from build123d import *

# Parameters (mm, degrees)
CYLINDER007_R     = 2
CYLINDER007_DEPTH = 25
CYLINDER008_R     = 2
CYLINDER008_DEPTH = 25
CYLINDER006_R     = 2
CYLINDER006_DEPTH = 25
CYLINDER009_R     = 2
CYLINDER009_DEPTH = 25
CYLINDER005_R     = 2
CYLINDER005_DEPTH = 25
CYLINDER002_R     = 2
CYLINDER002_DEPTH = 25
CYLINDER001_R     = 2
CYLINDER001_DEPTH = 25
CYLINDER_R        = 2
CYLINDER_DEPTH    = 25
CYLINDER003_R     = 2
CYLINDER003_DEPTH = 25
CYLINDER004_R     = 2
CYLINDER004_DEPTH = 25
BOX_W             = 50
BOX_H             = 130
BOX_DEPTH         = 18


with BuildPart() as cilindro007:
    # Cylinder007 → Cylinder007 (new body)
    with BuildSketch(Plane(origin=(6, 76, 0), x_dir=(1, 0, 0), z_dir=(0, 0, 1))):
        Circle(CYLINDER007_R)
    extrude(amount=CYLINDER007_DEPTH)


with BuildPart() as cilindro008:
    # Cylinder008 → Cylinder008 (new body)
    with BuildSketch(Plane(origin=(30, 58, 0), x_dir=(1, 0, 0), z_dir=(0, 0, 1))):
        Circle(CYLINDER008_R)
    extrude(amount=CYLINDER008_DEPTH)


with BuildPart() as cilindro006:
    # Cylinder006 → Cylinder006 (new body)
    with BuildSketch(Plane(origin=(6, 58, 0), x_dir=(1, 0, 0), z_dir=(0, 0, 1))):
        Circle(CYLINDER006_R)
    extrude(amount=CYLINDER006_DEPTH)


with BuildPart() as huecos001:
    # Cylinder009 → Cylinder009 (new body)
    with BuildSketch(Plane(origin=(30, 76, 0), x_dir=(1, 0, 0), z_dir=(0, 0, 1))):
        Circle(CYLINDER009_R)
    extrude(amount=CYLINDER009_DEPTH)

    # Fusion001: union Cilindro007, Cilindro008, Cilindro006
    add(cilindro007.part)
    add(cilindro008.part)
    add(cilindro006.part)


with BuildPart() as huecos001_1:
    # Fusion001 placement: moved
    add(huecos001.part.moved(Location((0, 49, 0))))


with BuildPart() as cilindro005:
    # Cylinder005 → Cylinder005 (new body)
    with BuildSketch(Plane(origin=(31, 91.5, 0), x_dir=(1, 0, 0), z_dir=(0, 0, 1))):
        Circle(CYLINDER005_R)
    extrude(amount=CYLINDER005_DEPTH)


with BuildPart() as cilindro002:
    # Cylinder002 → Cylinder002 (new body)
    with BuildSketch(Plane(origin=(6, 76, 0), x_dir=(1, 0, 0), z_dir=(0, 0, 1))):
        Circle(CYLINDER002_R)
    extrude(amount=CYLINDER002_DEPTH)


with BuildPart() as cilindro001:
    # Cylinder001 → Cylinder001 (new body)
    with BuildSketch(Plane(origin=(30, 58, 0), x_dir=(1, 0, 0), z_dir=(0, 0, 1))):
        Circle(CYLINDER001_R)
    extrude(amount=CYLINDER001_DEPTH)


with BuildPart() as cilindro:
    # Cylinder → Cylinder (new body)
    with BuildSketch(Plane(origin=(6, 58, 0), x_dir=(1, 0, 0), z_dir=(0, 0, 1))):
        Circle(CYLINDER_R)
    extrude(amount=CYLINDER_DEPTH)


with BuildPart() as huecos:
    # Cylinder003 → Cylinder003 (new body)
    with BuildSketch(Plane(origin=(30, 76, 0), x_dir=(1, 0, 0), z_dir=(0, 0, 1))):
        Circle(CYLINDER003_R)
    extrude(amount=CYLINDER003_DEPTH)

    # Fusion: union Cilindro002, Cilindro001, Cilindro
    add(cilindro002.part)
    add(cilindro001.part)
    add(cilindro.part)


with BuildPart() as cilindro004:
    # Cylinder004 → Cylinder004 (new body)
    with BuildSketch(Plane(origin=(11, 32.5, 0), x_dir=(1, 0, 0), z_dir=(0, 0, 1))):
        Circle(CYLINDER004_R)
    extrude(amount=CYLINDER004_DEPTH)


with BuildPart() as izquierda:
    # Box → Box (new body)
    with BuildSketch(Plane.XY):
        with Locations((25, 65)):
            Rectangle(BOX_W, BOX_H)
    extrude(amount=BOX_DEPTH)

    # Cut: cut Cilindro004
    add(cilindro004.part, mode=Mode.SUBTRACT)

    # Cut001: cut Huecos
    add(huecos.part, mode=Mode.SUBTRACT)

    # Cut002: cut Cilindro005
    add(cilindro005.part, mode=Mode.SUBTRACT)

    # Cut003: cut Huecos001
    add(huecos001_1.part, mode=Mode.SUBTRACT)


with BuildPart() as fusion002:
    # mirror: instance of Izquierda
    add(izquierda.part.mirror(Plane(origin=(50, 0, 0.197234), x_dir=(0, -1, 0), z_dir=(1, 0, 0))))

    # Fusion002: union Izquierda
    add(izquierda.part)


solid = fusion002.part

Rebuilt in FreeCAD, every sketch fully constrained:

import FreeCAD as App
import Part
import Sketcher
Q = App.Units.Quantity


def add_polygon(sketch, points):
    """Adds a closed chain of lines whose ends are joined by coincident constraints."""
    first, n = sketch.GeometryCount, len(points)
    for a, b in zip(points, points[1:] + points[:1]):
        sketch.addGeometry(Part.LineSegment(App.Vector(*a, 0), App.Vector(*b, 0)), False)
    for i in range(n):
        sketch.addConstraint(Sketcher.Constraint("Coincident", first + i, 2, first + (i + 1) % n, 1))

doc = App.newDocument("Part")
body = doc.addObject("PartDesign::Body", "Body")

# Sketch on XY plane
sketch1 = body.newObject("Sketcher::SketchObject", "Sketch")
sketch1.AttachmentSupport = (doc.getObject("XY_Plane"), [""])
sketch1.MapMode = "FlatFace"
sketch1.addGeometry(Part.Circle(App.Vector(6, 76, 0), App.Vector(0, 0, 1), 2), False)
sketch1.addConstraint(Sketcher.Constraint("Diameter", 0, Q("4 mm")))
sketch1.addConstraint(Sketcher.Constraint("DistanceX", -1, 1, 0, 3, Q("6 mm")))
sketch1.addConstraint(Sketcher.Constraint("DistanceY", -1, 1, 0, 3, Q("76 mm")))
pad1 = body.newObject("PartDesign::Pad", "Pad")
pad1.Profile = sketch1
pad1.Length = 25
body2 = doc.addObject("PartDesign::Body", "Body001")

# Sketch on XY plane
sketch2 = body2.newObject("Sketcher::SketchObject", "Sketch001")
sketch2.AttachmentSupport = (doc.getObject("XY_Plane001"), [""])
sketch2.MapMode = "FlatFace"
sketch2.addGeometry(Part.Circle(App.Vector(30, 58, 0), App.Vector(0, 0, 1), 2), False)
sketch2.addConstraint(Sketcher.Constraint("Diameter", 0, Q("4 mm")))
sketch2.addConstraint(Sketcher.Constraint("DistanceX", -1, 1, 0, 3, Q("30 mm")))
sketch2.addConstraint(Sketcher.Constraint("DistanceY", -1, 1, 0, 3, Q("58 mm")))
pad2 = body2.newObject("PartDesign::Pad", "Pad001")
pad2.Profile = sketch2
pad2.Length = 25
body3 = doc.addObject("PartDesign::Body", "Body002")

# Sketch on XY plane
sketch3 = body3.newObject("Sketcher::SketchObject", "Sketch002")
sketch3.AttachmentSupport = (doc.getObject("XY_Plane002"), [""])
sketch3.MapMode = "FlatFace"
sketch3.addGeometry(Part.Circle(App.Vector(6, 58, 0), App.Vector(0, 0, 1), 2), False)
sketch3.addConstraint(Sketcher.Constraint("Diameter", 0, Q("4 mm")))
sketch3.addConstraint(Sketcher.Constraint("DistanceX", -1, 1, 0, 3, Q("6 mm")))
sketch3.addConstraint(Sketcher.Constraint("DistanceY", -1, 1, 0, 3, Q("58 mm")))
pad3 = body3.newObject("PartDesign::Pad", "Pad002")
pad3.Profile = sketch3
pad3.Length = 25
body4 = doc.addObject("PartDesign::Body", "Body003")
body4.AllowCompound = True

# Sketch on XY plane
sketch4 = body4.newObject("Sketcher::SketchObject", "Sketch003")
sketch4.AttachmentSupport = (doc.getObject("XY_Plane003"), [""])
sketch4.MapMode = "FlatFace"
sketch4.addGeometry(Part.Circle(App.Vector(30, 76, 0), App.Vector(0, 0, 1), 2), False)
sketch4.addConstraint(Sketcher.Constraint("Diameter", 0, Q("4 mm")))
sketch4.addConstraint(Sketcher.Constraint("DistanceX", -1, 1, 0, 3, Q("30 mm")))
sketch4.addConstraint(Sketcher.Constraint("DistanceY", -1, 1, 0, 3, Q("76 mm")))
pad4 = body4.newObject("PartDesign::Pad", "Pad003")
pad4.Profile = sketch4
pad4.Length = 25
doc.recompute()

boolean = body4.newObject("PartDesign::Boolean", "Boolean")
boolean.Type = "Fuse"
boolean.addObjects([body])
doc.recompute()

boolean2 = body4.newObject("PartDesign::Boolean", "Boolean001")
boolean2.Type = "Fuse"
boolean2.addObjects([body2])
doc.recompute()

boolean3 = body4.newObject("PartDesign::Boolean", "Boolean002")
boolean3.Type = "Fuse"
boolean3.addObjects([body3])
body5 = doc.addObject("PartDesign::Body", "Body004")
body5.AllowCompound = True
doc.recompute()

body4.Placement = App.Placement(App.Vector(0, 49, 0), App.Rotation(App.Vector(0, 0, 1), 0))
boolean4 = body5.newObject("PartDesign::Boolean", "Boolean003")
boolean4.Type = "Fuse"
boolean4.addObjects([body4])
body6 = doc.addObject("PartDesign::Body", "Body005")

# Sketch on XY plane
sketch5 = body6.newObject("Sketcher::SketchObject", "Sketch004")
sketch5.AttachmentSupport = (doc.getObject("XY_Plane005"), [""])
sketch5.MapMode = "FlatFace"
sketch5.addGeometry(Part.Circle(App.Vector(31, 91.5, 0), App.Vector(0, 0, 1), 2), False)
sketch5.addConstraint(Sketcher.Constraint("Diameter", 0, Q("4 mm")))
sketch5.addConstraint(Sketcher.Constraint("DistanceX", -1, 1, 0, 3, Q("31 mm")))
sketch5.addConstraint(Sketcher.Constraint("DistanceY", -1, 1, 0, 3, Q("91.5 mm")))
pad5 = body6.newObject("PartDesign::Pad", "Pad004")
pad5.Profile = sketch5
pad5.Length = 25
body7 = doc.addObject("PartDesign::Body", "Body006")

# Sketch on XY plane
sketch6 = body7.newObject("Sketcher::SketchObject", "Sketch005")
sketch6.AttachmentSupport = (doc.getObject("XY_Plane006"), [""])
sketch6.MapMode = "FlatFace"
sketch6.addGeometry(Part.Circle(App.Vector(6, 76, 0), App.Vector(0, 0, 1), 2), False)
sketch6.addConstraint(Sketcher.Constraint("Diameter", 0, Q("4 mm")))
sketch6.addConstraint(Sketcher.Constraint("DistanceX", -1, 1, 0, 3, Q("6 mm")))
sketch6.addConstraint(Sketcher.Constraint("DistanceY", -1, 1, 0, 3, Q("76 mm")))
pad6 = body7.newObject("PartDesign::Pad", "Pad005")
pad6.Profile = sketch6
pad6.Length = 25
body8 = doc.addObject("PartDesign::Body", "Body007")

# Sketch on XY plane
sketch7 = body8.newObject("Sketcher::SketchObject", "Sketch006")
sketch7.AttachmentSupport = (doc.getObject("XY_Plane007"), [""])
sketch7.MapMode = "FlatFace"
sketch7.addGeometry(Part.Circle(App.Vector(30, 58, 0), App.Vector(0, 0, 1), 2), False)
sketch7.addConstraint(Sketcher.Constraint("Diameter", 0, Q("4 mm")))
sketch7.addConstraint(Sketcher.Constraint("DistanceX", -1, 1, 0, 3, Q("30 mm")))
sketch7.addConstraint(Sketcher.Constraint("DistanceY", -1, 1, 0, 3, Q("58 mm")))
pad7 = body8.newObject("PartDesign::Pad", "Pad006")
pad7.Profile = sketch7
pad7.Length = 25
body9 = doc.addObject("PartDesign::Body", "Body008")

# Sketch on XY plane
sketch8 = body9.newObject("Sketcher::SketchObject", "Sketch007")
sketch8.AttachmentSupport = (doc.getObject("XY_Plane008"), [""])
sketch8.MapMode = "FlatFace"
sketch8.addGeometry(Part.Circle(App.Vector(6, 58, 0), App.Vector(0, 0, 1), 2), False)
sketch8.addConstraint(Sketcher.Constraint("Diameter", 0, Q("4 mm")))
sketch8.addConstraint(Sketcher.Constraint("DistanceX", -1, 1, 0, 3, Q("6 mm")))
sketch8.addConstraint(Sketcher.Constraint("DistanceY", -1, 1, 0, 3, Q("58 mm")))
pad8 = body9.newObject("PartDesign::Pad", "Pad007")
pad8.Profile = sketch8
pad8.Length = 25
body10 = doc.addObject("PartDesign::Body", "Body009")
body10.AllowCompound = True

# Sketch on XY plane
sketch9 = body10.newObject("Sketcher::SketchObject", "Sketch008")
sketch9.AttachmentSupport = (doc.getObject("XY_Plane009"), [""])
sketch9.MapMode = "FlatFace"
sketch9.addGeometry(Part.Circle(App.Vector(30, 76, 0), App.Vector(0, 0, 1), 2), False)
sketch9.addConstraint(Sketcher.Constraint("Diameter", 0, Q("4 mm")))
sketch9.addConstraint(Sketcher.Constraint("DistanceX", -1, 1, 0, 3, Q("30 mm")))
sketch9.addConstraint(Sketcher.Constraint("DistanceY", -1, 1, 0, 3, Q("76 mm")))
pad9 = body10.newObject("PartDesign::Pad", "Pad008")
pad9.Profile = sketch9
pad9.Length = 25
doc.recompute()

boolean5 = body10.newObject("PartDesign::Boolean", "Boolean004")
boolean5.Type = "Fuse"
boolean5.addObjects([body7])
doc.recompute()

boolean6 = body10.newObject("PartDesign::Boolean", "Boolean005")
boolean6.Type = "Fuse"
boolean6.addObjects([body8])
doc.recompute()

boolean7 = body10.newObject("PartDesign::Boolean", "Boolean006")
boolean7.Type = "Fuse"
boolean7.addObjects([body9])
body11 = doc.addObject("PartDesign::Body", "Body010")

# Sketch on XY plane
sketch10 = body11.newObject("Sketcher::SketchObject", "Sketch009")
sketch10.AttachmentSupport = (doc.getObject("XY_Plane010"), [""])
sketch10.MapMode = "FlatFace"
sketch10.addGeometry(Part.Circle(App.Vector(11, 32.5, 0), App.Vector(0, 0, 1), 2), False)
sketch10.addConstraint(Sketcher.Constraint("Diameter", 0, Q("4 mm")))
sketch10.addConstraint(Sketcher.Constraint("DistanceX", -1, 1, 0, 3, Q("11 mm")))
sketch10.addConstraint(Sketcher.Constraint("DistanceY", -1, 1, 0, 3, Q("32.5 mm")))
pad10 = body11.newObject("PartDesign::Pad", "Pad009")
pad10.Profile = sketch10
pad10.Length = 25
body12 = doc.addObject("PartDesign::Body", "Body011")

# Sketch on XY plane
sketch11 = body12.newObject("Sketcher::SketchObject", "Sketch010")
sketch11.AttachmentSupport = (doc.getObject("XY_Plane011"), [""])
sketch11.MapMode = "FlatFace"
add_polygon(sketch11, [(0, 130), (0, 0), (50, 0), (50, 130)])  # lines 0-3
sketch11.addConstraint(Sketcher.Constraint("Vertical", 0))
sketch11.addConstraint(Sketcher.Constraint("Horizontal", 1))
sketch11.addConstraint(Sketcher.Constraint("Vertical", 2))
sketch11.addConstraint(Sketcher.Constraint("Horizontal", 3))
sketch11.addConstraint(Sketcher.Constraint("Coincident", 0, 2, -1, 1))
sketch11.addConstraint(Sketcher.Constraint("DistanceX", 1, 1, 1, 2, Q("50 mm")))
sketch11.addConstraint(Sketcher.Constraint("DistanceY", 0, 2, 0, 1, Q("130 mm")))
pad11 = body12.newObject("PartDesign::Pad", "Pad010")
pad11.Profile = sketch11
pad11.Length = 18
doc.recompute()

boolean8 = body12.newObject("PartDesign::Boolean", "Boolean007")
boolean8.Type = "Cut"
boolean8.addObjects([body11])
doc.recompute()

boolean9 = body12.newObject("PartDesign::Boolean", "Boolean008")
boolean9.Type = "Cut"
boolean9.addObjects([body10])
doc.recompute()

boolean10 = body12.newObject("PartDesign::Boolean", "Boolean009")
boolean10.Type = "Cut"
boolean10.addObjects([body6])
doc.recompute()

boolean11 = body12.newObject("PartDesign::Boolean", "Boolean010")
boolean11.Type = "Cut"
boolean11.addObjects([body5])
body13 = doc.addObject("PartDesign::Body", "Body012")
doc.recompute()

mirroring = doc.addObject("Part::Mirroring", "Mirroring")
mirroring.Source = body12
mirroring.Base = App.Vector(50, 0, 0.197234)
mirroring.Normal = App.Vector(1, 0, 0)
body13.BaseFeature = mirroring
doc.recompute()

boolean12 = body13.newObject("PartDesign::Boolean", "Boolean011")
boolean12.Type = "Fuse"
boolean12.addObjects([body12])
mirroring.Visibility = False

doc.recompute()
